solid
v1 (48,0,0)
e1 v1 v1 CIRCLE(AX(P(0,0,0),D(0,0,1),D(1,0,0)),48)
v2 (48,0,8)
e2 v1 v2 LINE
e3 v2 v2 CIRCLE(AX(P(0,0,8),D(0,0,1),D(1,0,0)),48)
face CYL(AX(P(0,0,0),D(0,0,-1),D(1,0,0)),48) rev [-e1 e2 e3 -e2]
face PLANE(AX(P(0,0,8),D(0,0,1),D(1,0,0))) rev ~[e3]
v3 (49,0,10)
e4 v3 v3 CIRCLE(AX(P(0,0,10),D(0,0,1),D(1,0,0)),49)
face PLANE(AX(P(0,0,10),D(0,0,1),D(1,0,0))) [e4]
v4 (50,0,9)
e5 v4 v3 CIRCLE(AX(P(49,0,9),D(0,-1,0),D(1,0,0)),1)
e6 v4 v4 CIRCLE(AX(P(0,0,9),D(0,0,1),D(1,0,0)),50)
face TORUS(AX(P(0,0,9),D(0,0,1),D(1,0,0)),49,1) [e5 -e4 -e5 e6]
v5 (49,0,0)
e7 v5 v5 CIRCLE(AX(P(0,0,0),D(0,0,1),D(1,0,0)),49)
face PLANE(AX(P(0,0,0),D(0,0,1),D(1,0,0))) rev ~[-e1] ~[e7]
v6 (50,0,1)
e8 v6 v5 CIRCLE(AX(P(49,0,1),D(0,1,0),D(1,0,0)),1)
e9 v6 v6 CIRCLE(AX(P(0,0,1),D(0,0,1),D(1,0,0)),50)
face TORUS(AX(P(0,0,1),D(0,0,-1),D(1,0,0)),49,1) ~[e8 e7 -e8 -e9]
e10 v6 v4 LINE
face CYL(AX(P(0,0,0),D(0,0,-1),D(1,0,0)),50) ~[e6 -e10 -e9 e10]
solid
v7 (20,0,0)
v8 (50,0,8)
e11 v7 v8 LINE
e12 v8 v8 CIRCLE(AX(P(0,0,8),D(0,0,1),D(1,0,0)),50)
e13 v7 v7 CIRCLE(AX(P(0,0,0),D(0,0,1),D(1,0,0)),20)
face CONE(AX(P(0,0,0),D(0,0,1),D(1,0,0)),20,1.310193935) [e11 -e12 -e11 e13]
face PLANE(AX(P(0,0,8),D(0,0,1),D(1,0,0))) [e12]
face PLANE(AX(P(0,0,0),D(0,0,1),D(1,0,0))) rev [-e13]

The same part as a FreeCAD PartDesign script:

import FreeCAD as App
import Part
import Sketcher
from FreeCAD import Vector


def edges_at(feature, points):
    """Names of the edges that pass closest to the given points."""
    edges = feature.Shape.Edges
    near = lambda p: min(range(len(edges)), key=lambda i: edges[i].distToShape(Part.Vertex(*p))[0])
    return sorted({f"Edge{near(p) + 1}" for p in points})


def add_polygon(sketch, points):
    """Adds a closed chain of lines whose ends are joined by coincident constraints."""
    first, n = sketch.GeometryCount, len(points)
    for a, b in zip(points, points[1:] + points[:1]):
        sketch.addGeometry(Part.LineSegment(App.Vector(*a, 0), App.Vector(*b, 0)), False)
    for i in range(n):
        sketch.addConstraint(Sketcher.Constraint("Coincident", first + i, 2, first + (i + 1) % n, 1))

doc = App.newDocument("Part")
params = doc.addObject("Spreadsheet::Sheet", "Params")
for row, (alias, value) in enumerate([
    ("sketch1_width", "20 mm"),
    ("sketch1_width2", "50 mm"),
    ("sketch1_height", "8 mm"),
    ("revolution_angle", "360 deg"),
    ("sketch2_diameter", "96 mm"),
    ("pad1_length", "8 mm"),
    ("sketch3_diameter", "100 mm"),
    ("pad2_length", "10 mm"),
    ("fillet_radius", "1 mm"),
], start=1):
    params.set(f"A{row}", alias)
    params.set(f"B{row}", "=" + value)
    params.setAlias(f"B{row}", alias)

body = doc.addObject("PartDesign::Body", "Body")

# Sketch on XZ plane
sketch1 = body.newObject("Sketcher::SketchObject", "Sketch")
sketch1.AttachmentSupport = (doc.getObject("XZ_Plane"), [""])
sketch1.MapMode = "FlatFace"
add_polygon(sketch1, [(0, 0), (20, 0), (50, 8), (0, 8)])  # lines 0-3
sketch1.addConstraint(Sketcher.Constraint("Horizontal", 0))
sketch1.addConstraint(Sketcher.Constraint("Horizontal", 2))
sketch1.addConstraint(Sketcher.Constraint("Vertical", 3))
sketch1.addConstraint(Sketcher.Constraint("Coincident", 3, 2, -1, 1))
sketch1.addConstraint(Sketcher.Constraint("DistanceX", 0, 1, 0, 2, 20.0))
sketch1.addConstraint(Sketcher.Constraint("DistanceX", 2, 2, 2, 1, 50.0))
sketch1.addConstraint(Sketcher.Constraint("DistanceY", 3, 2, 3, 1, 8.0))
sketch1.setExpression("Constraints[8]", "Params.sketch1_width")
sketch1.setExpression("Constraints[9]", "Params.sketch1_width2")
sketch1.setExpression("Constraints[10]", "Params.sketch1_height")
revolution = body.newObject("PartDesign::Revolution", "Revolution")
revolution.Profile = sketch1
revolution.ReferenceAxis = (sketch1, ["V_Axis"])
revolution.setExpression("Angle", "Params.revolution_angle")
body2 = doc.addObject("PartDesign::Body", "Body001")

# Sketch on XY plane
sketch2 = body2.newObject("Sketcher::SketchObject", "Sketch001")
sketch2.AttachmentSupport = (doc.getObject("XY_Plane001"), [""])
sketch2.MapMode = "FlatFace"
sketch2.addGeometry(Part.Circle(Vector(0, 0, 0), Vector(0, 0, 1), 48), False)
sketch2.addConstraint(Sketcher.Constraint("Coincident", 0, 3, -1, 1))
sketch2.addConstraint(Sketcher.Constraint("Diameter", 0, 96.0))
sketch2.setExpression("Constraints[1]", "Params.sketch2_diameter")
pad1 = body2.newObject("PartDesign::Pad", "Pad")
pad1.Profile = sketch2
pad1.setExpression("Length", "Params.pad1_length")
body3 = doc.addObject("PartDesign::Body", "Body002")

# Sketch on XY plane
sketch3 = body3.newObject("Sketcher::SketchObject", "Sketch002")
sketch3.AttachmentSupport = (doc.getObject("XY_Plane002"), [""])
sketch3.MapMode = "FlatFace"
sketch3.addGeometry(Part.Circle(Vector(0, 0, 0), Vector(0, 0, 1), 50), False)
sketch3.addConstraint(Sketcher.Constraint("Coincident", 0, 3, -1, 1))
sketch3.addConstraint(Sketcher.Constraint("Diameter", 0, 100.0))
sketch3.setExpression("Constraints[1]", "Params.sketch3_diameter")
pad2 = body3.newObject("PartDesign::Pad", "Pad001")
pad2.Profile = sketch3
pad2.setExpression("Length", "Params.pad2_length")
doc.recompute()

boolean = body3.newObject("PartDesign::Boolean", "Boolean")
boolean.Type = "Cut"
boolean.addObjects([body2])
doc.recompute()

fillet = body3.newObject("PartDesign::Fillet", "Fillet")
fillet.Base = (boolean, edges_at(boolean, [(-50, 0, 10), (-50, 0, 0)]))
fillet.setExpression("Radius", "Params.fillet_radius")

doc.recompute()
